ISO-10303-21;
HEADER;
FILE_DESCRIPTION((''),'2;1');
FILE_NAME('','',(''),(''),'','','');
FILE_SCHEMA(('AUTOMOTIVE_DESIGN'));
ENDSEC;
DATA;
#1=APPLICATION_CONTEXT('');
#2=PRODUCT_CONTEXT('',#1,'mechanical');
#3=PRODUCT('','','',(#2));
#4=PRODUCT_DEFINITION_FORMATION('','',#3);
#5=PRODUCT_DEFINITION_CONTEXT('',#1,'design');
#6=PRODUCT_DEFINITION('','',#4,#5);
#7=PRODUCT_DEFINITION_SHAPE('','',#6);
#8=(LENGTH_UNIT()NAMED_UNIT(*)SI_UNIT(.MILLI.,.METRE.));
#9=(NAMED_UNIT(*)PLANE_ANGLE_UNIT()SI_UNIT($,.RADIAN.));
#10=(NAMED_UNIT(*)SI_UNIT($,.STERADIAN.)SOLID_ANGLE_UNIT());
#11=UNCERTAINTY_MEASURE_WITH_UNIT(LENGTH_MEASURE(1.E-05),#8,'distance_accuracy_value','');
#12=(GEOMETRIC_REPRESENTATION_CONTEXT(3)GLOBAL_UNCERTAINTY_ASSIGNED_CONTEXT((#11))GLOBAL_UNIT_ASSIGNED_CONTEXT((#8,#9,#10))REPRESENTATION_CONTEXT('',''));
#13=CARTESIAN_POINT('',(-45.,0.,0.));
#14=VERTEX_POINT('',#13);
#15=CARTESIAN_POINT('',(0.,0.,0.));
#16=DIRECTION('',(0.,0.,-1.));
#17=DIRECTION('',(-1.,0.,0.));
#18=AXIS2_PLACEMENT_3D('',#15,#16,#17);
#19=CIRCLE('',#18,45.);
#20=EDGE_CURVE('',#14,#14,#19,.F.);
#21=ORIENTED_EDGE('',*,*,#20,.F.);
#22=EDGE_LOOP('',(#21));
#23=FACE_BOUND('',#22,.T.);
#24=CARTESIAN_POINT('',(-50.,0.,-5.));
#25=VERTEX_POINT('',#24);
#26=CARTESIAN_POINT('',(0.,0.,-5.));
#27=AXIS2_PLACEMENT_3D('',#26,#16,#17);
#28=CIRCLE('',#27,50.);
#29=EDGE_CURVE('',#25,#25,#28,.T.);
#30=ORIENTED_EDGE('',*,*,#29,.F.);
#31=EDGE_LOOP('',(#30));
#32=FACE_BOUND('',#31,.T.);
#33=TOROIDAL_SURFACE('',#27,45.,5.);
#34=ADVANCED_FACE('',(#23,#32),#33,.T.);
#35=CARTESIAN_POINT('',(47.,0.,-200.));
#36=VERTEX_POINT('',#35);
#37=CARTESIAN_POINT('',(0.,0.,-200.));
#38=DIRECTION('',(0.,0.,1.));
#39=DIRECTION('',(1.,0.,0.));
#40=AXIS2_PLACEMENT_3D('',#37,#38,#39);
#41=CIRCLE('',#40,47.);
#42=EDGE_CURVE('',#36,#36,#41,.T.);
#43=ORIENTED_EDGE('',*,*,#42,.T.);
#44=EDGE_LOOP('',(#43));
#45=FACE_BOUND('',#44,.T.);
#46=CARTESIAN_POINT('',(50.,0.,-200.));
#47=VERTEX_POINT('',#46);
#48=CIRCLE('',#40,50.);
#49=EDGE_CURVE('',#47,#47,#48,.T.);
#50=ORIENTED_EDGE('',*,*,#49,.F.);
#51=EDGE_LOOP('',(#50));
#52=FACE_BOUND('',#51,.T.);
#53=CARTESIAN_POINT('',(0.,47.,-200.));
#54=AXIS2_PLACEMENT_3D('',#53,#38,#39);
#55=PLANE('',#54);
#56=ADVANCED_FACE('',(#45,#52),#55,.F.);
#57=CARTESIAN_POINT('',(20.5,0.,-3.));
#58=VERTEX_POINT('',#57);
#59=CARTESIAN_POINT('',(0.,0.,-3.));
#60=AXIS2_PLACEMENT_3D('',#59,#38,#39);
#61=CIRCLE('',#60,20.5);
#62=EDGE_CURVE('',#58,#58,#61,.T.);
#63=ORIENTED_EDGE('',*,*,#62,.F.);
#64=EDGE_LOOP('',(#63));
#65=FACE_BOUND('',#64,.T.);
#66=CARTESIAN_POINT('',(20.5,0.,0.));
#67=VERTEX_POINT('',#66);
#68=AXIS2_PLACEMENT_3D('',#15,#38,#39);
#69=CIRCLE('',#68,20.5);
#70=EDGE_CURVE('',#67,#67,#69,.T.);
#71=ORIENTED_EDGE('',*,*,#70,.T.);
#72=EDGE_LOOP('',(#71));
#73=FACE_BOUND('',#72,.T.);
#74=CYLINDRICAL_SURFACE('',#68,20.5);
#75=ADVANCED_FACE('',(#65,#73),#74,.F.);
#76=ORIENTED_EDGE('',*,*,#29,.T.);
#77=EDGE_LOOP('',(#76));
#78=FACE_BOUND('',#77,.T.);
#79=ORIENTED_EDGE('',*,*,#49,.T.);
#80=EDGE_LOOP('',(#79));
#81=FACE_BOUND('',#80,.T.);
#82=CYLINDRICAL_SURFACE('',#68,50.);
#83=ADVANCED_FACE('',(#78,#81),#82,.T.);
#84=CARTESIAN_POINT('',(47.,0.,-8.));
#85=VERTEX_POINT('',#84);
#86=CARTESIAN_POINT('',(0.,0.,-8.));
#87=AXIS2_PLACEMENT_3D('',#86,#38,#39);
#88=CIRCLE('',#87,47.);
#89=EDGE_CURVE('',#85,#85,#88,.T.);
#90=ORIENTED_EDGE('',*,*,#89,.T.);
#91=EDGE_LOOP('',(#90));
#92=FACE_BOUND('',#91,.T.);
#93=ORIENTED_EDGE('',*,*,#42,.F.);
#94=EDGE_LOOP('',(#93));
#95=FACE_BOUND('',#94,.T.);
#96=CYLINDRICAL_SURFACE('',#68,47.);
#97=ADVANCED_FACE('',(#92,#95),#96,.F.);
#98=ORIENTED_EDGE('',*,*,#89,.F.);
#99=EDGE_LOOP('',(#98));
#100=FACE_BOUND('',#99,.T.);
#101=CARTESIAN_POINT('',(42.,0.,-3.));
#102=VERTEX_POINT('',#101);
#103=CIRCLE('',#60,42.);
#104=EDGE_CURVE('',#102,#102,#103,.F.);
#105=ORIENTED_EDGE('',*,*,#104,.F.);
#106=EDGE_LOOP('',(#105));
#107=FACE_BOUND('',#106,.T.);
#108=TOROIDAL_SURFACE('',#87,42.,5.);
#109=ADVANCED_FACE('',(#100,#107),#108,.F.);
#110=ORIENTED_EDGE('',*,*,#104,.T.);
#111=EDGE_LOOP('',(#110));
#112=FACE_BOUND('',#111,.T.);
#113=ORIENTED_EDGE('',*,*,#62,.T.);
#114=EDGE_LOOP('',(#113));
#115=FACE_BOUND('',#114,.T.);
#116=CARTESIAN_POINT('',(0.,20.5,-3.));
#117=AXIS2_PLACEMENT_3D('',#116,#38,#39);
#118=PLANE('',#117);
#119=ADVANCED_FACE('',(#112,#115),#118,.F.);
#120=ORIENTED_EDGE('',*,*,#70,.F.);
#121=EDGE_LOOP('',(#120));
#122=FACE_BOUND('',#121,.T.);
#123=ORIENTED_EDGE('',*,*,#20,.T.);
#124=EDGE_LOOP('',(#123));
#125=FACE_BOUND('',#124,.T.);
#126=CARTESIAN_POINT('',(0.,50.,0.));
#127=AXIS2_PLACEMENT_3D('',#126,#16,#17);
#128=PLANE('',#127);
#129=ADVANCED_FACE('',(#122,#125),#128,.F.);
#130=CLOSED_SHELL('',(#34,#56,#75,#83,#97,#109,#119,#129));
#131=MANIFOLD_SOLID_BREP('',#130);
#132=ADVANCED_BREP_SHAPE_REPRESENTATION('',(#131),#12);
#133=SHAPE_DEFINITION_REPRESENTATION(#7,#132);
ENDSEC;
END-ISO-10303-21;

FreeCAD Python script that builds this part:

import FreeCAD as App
import Part
import Sketcher
from FreeCAD import Vector
Q = App.Units.Quantity


def edges_at(feature, points):
    """Names of the edges that pass closest to the given points."""
    edges = feature.Shape.Edges
    near = lambda p: min(range(len(edges)), key=lambda i: edges[i].distToShape(Part.Vertex(*p))[0])
    return sorted({f"Edge{near(p) + 1}" for p in points})

doc = App.newDocument("Part")
body = doc.addObject("PartDesign::Body", "Body")

# Sketch on YZ plane
sketch1 = body.newObject("Sketcher::SketchObject", "Sketch")
sketch1.AttachmentSupport = (doc.getObject("YZ_Plane"), [""])
sketch1.MapMode = "FlatFace"
sketch1.addGeometry([
    Part.LineSegment(Vector(50, 0, 0), Vector(20.5, 0, 0)),  # 0
    Part.LineSegment(Vector(20.5, 0, 0), Vector(20.5, -3, 0)),  # 1
    Part.LineSegment(Vector(20.5, -3, 0), Vector(47, -3, 0)),  # 2
    Part.LineSegment(Vector(47, -3, 0), Vector(47, -200, 0)),  # 3
    Part.LineSegment(Vector(47, -200, 0), Vector(50, -200, 0)),  # 4
    Part.LineSegment(Vector(50, -200, 0), Vector(50, 0, 0)),  # 5
], False)
sketch1.addConstraint([
    Sketcher.Constraint("Coincident", 0, 2, 1, 1),
    Sketcher.Constraint("Coincident", 1, 2, 2, 1),
    Sketcher.Constraint("Coincident", 2, 2, 3, 1),
    Sketcher.Constraint("Coincident", 3, 2, 4, 1),
    Sketcher.Constraint("Coincident", 4, 2, 5, 1),
    Sketcher.Constraint("Coincident", 5, 2, 0, 1),
    Sketcher.Constraint("Horizontal", 0),
    Sketcher.Constraint("Vertical", 1),
    Sketcher.Constraint("Horizontal", 2),
    Sketcher.Constraint("Vertical", 3),
    Sketcher.Constraint("Horizontal", 4),
    Sketcher.Constraint("Vertical", 5),
    Sketcher.Constraint("PointOnObject", 0, 2, -1),
    Sketcher.Constraint("Equal", 4, 1),
    Sketcher.Constraint("DistanceX", 4, 1, 4, 2, Q("3 mm")),
    Sketcher.Constraint("DistanceY", 3, 2, 3, 1, Q("197 mm")),
    Sketcher.Constraint("DistanceX", 0, 2, 0, 1, Q("29.5 mm")),
    Sketcher.Constraint("DistanceX", -1, 1, 2, 2, Q("47 mm")),
])
revolution = body.newObject("PartDesign::Revolution", "Revolution")
revolution.Profile = sketch1
revolution.ReferenceAxis = (sketch1, ["V_Axis"])
revolution.Angle = 360
doc.recompute()

fillet = body.newObject("PartDesign::Fillet", "Fillet")
fillet.Base = (revolution, edges_at(revolution, [(0, -47, -3), (0, -50, 0)]))
fillet.Radius = 5

doc.recompute()
